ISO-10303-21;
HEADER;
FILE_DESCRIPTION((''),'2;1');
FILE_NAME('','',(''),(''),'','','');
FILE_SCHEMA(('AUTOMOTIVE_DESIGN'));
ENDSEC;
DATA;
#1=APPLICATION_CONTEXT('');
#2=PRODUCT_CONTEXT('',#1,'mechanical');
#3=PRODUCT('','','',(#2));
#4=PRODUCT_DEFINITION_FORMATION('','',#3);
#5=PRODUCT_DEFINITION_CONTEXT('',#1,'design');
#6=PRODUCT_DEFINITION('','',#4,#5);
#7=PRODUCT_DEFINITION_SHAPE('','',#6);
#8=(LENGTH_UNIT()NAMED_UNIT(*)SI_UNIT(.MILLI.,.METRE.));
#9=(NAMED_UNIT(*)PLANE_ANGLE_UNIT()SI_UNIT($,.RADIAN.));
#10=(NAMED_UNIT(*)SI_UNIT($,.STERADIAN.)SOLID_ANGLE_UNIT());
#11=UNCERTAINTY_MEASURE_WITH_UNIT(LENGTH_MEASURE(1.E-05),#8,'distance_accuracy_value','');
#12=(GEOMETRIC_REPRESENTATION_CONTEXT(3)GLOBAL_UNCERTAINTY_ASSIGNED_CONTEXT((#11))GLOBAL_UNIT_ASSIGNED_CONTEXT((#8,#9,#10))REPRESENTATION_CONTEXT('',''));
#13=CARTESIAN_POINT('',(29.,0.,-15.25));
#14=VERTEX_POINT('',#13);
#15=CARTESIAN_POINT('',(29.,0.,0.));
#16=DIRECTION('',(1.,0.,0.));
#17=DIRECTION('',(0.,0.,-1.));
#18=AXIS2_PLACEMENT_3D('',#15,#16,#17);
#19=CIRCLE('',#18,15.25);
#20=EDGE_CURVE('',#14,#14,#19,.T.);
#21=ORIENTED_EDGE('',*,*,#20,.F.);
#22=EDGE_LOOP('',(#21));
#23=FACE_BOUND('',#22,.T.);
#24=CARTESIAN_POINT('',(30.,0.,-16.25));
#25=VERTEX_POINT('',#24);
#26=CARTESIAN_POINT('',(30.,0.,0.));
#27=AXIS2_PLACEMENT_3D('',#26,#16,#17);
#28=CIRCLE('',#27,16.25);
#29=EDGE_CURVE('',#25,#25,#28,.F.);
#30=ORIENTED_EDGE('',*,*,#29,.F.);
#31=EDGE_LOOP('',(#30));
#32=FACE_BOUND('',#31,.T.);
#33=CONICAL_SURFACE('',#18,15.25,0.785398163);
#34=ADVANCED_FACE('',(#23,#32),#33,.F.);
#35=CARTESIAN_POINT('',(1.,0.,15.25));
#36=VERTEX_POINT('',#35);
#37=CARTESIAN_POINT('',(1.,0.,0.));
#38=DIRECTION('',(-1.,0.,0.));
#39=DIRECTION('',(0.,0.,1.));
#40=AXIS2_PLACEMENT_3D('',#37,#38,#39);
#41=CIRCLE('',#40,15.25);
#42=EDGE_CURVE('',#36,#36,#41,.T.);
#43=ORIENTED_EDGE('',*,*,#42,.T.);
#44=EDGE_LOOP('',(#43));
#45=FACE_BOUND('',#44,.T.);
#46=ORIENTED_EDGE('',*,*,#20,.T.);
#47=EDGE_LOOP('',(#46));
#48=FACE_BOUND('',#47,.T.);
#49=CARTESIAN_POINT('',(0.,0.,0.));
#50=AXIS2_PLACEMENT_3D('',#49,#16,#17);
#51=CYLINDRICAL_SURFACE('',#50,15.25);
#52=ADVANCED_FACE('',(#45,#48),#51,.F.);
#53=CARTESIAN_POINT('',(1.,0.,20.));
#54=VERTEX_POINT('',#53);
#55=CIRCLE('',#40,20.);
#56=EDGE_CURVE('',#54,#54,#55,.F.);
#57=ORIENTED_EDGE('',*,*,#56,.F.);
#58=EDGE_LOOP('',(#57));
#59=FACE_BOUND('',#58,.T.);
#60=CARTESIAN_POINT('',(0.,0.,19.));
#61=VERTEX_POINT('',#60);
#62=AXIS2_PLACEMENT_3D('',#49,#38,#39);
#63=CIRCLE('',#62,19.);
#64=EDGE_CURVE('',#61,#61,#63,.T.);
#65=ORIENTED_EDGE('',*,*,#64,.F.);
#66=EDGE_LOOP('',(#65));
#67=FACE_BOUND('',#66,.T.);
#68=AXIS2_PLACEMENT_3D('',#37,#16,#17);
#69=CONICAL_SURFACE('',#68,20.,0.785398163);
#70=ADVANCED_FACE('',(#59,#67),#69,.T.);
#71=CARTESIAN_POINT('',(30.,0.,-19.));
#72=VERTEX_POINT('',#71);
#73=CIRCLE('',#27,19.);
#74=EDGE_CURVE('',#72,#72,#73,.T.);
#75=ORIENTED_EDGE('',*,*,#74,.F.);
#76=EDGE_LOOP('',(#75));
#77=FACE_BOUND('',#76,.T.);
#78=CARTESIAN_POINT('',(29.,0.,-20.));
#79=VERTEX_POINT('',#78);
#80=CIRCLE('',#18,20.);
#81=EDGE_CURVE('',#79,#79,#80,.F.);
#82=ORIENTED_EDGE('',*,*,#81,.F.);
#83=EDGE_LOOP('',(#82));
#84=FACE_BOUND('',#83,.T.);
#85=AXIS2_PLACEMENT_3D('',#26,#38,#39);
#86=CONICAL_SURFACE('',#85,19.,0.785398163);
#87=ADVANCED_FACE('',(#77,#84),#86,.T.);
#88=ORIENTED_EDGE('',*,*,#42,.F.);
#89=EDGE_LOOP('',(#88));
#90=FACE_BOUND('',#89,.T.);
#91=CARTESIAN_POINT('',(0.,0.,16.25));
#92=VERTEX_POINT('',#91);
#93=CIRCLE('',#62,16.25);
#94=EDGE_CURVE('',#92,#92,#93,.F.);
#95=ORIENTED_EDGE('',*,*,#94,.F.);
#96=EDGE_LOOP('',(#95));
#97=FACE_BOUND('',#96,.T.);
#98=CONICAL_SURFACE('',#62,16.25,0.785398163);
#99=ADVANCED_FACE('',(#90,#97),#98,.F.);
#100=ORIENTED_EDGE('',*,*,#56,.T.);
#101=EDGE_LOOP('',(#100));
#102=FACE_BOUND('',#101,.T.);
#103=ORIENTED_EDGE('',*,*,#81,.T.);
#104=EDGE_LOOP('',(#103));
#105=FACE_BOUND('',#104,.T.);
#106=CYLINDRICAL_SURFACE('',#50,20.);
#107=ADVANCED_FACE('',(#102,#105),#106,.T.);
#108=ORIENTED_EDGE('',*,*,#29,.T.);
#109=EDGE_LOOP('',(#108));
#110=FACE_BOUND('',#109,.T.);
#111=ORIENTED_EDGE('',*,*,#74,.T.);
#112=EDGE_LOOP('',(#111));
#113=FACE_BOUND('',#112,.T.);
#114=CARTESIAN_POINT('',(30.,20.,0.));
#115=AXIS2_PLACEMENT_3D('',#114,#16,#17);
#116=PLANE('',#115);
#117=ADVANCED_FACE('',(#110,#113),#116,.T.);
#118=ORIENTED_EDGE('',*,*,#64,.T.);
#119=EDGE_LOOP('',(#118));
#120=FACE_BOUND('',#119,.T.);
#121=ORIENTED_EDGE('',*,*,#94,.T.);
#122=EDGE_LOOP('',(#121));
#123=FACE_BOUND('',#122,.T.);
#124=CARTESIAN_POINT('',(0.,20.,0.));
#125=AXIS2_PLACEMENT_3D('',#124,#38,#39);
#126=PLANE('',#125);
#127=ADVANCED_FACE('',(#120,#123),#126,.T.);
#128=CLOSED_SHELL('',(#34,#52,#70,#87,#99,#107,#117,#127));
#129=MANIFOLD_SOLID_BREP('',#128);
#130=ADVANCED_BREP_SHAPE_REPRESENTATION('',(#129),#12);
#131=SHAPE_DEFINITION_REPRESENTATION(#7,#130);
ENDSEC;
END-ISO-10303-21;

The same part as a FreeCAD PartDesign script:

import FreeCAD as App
import Part
import Sketcher

V = App.Vector


def edges_at(feature, points):
    """Names of the edges that pass closest to the given points."""
    edges = feature.Shape.Edges
    near = lambda p: min(range(len(edges)), key=lambda i: edges[i].distToShape(Part.Vertex(*p))[0])
    return sorted({f"Edge{near(p) + 1}" for p in points})


def add_polygon(sketch, points):
    """Adds a closed chain of lines whose ends are joined by coincident constraints."""
    first, n = sketch.GeometryCount, len(points)
    for a, b in zip(points, points[1:] + points[:1]):
        sketch.addGeometry(Part.LineSegment(App.Vector(*a, 0), App.Vector(*b, 0)), False)
    for i in range(n):
        sketch.addConstraint(Sketcher.Constraint("Coincident", first + i, 2, first + (i + 1) % n, 1))

doc = App.newDocument("Part")
body = doc.addObject("PartDesign::Body", "Body")

# Sketch on XY plane
sketch1 = doc.addObject("Sketcher::SketchObject", "Sketch")
body.addObject(sketch1)
sketch1.AttachmentSupport = (doc.XY_Plane, [""])
sketch1.MapMode = "FlatFace"
add_polygon(sketch1, [(0, 20), (0, 15.25), (30, 15.25), (30, 20)])  # lines 0-3
sketch1.addConstraint([
    Sketcher.Constraint("Vertical", 0),
    Sketcher.Constraint("Horizontal", 1),
    Sketcher.Constraint("Vertical", 2),
    Sketcher.Constraint("Horizontal", 3),
    Sketcher.Constraint("PointOnObject", 0, 2, -2),
    Sketcher.Constraint("DistanceX", 1, 1, 1, 2, 30.0),
    Sketcher.Constraint("DistanceY", -1, 1, 2, 2, 20.0),
    Sketcher.Constraint("DistanceY", 0, 2, 0, 1, 4.75),
])
revolution = doc.addObject("PartDesign::Revolution", "Revolution")
body.addObject(revolution)
revolution.Profile = sketch1
revolution.ReferenceAxis = (sketch1, ["H_Axis"])
revolution.Angle = 360
doc.recompute()

chamfer = doc.addObject("PartDesign::Chamfer", "Chamfer")
body.addObject(chamfer)
chamfer.Base = (revolution, edges_at(revolution, [(0, 0, 20), (30, 0, 20)]))
chamfer.Size = 1
doc.recompute()

chamfer2 = doc.addObject("PartDesign::Chamfer", "Chamfer001")
body.addObject(chamfer2)
chamfer2.Base = (chamfer, edges_at(chamfer, [(30, 0, 15.25), (0, 0, 15.25)]))
chamfer2.Size = 1

doc.recompute()
